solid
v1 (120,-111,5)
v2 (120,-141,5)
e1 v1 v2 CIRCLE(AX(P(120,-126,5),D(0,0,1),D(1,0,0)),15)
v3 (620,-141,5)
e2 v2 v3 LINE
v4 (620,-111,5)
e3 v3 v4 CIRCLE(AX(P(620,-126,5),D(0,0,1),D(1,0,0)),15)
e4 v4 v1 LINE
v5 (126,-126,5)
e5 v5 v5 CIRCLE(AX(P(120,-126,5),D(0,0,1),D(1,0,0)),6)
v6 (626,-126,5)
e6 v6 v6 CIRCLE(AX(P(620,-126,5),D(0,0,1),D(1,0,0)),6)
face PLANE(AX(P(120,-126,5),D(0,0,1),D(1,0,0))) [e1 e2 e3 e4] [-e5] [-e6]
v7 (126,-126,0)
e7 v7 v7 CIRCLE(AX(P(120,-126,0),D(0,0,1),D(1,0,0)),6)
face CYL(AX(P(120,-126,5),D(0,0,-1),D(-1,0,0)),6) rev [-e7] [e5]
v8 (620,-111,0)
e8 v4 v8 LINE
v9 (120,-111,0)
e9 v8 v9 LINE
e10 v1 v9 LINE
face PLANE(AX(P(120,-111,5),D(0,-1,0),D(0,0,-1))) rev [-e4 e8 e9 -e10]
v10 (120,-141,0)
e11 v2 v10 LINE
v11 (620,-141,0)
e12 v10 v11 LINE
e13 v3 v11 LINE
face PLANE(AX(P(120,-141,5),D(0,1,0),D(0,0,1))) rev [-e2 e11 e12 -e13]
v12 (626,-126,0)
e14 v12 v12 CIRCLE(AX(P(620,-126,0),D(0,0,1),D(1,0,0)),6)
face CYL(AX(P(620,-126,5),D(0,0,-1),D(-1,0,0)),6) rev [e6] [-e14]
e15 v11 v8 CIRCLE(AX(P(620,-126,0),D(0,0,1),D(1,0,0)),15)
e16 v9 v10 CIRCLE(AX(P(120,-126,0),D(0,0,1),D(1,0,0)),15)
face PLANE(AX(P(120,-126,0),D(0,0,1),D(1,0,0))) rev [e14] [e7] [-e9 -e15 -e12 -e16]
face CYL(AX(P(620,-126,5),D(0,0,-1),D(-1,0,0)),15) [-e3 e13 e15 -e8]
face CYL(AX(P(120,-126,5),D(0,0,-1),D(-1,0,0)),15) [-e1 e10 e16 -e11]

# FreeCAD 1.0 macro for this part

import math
import FreeCAD as App
import Part
import Sketcher

V = App.Vector
Q = App.Units.Quantity

doc = App.newDocument("Part")
body = doc.addObject("PartDesign::Body", "Body")

# Sketch on XY plane
sketch1 = body.newObject("Sketcher::SketchObject", "Sketch")
sketch1.AttachmentSupport = (doc.getObject("XY_Plane"), [""])
sketch1.MapMode = "FlatFace"
sketch1.addGeometry(Part.LineSegment(V(620, -111, 0), V(120, -111, 0)), False)
sketch1.addGeometry(Part.ArcOfCircle(Part.Circle(V(120, -126, 0), V(0, 0, 1), 15), math.radians(90), math.radians(270)), False)
sketch1.addGeometry(Part.LineSegment(V(120, -141, 0), V(620, -141, 0)), False)
sketch1.addGeometry(Part.ArcOfCircle(Part.Circle(V(620, -126, 0), V(0, 0, 1), 15), math.radians(-90), math.radians(90)), False)
sketch1.addGeometry(Part.Circle(V(620, -126, 0), V(0, 0, 1), 6), False)
sketch1.addGeometry(Part.Circle(V(120, -126, 0), V(0, 0, 1), 6), False)
sketch1.addConstraint(Sketcher.Constraint("Tangent", 0, 2, 1, 1))
sketch1.addConstraint(Sketcher.Constraint("Tangent", 1, 2, 2, 1))
sketch1.addConstraint(Sketcher.Constraint("Tangent", 2, 2, 3, 1))
sketch1.addConstraint(Sketcher.Constraint("Tangent", 3, 2, 0, 1))
sketch1.addConstraint(Sketcher.Constraint("Horizontal", 0))
sketch1.addConstraint(Sketcher.Constraint("Horizontal", 2))
sketch1.addConstraint(Sketcher.Constraint("Coincident", 4, 3, 3, 3))
sketch1.addConstraint(Sketcher.Constraint("Coincident", 5, 3, 1, 3))
sketch1.addConstraint(Sketcher.Constraint("Equal", 4, 5))
sketch1.addConstraint(Sketcher.Constraint("Diameter", 4, Q("12 mm")))
sketch1.addConstraint(Sketcher.Constraint("Radius", 1, Q("15 mm")))
sketch1.addConstraint(Sketcher.Constraint("DistanceX", 0, 2, 0, 1, Q("500 mm")))
sketch1.addConstraint(Sketcher.Constraint("DistanceX", -1, 1, 1, 3, Q("120 mm")))
sketch1.addConstraint(Sketcher.Constraint("DistanceY", 1, 3, -1, 1, Q("126 mm")))
pad1 = body.newObject("PartDesign::Pad", "Pad")
pad1.Profile = sketch1
pad1.Length = 5

doc.recompute()
